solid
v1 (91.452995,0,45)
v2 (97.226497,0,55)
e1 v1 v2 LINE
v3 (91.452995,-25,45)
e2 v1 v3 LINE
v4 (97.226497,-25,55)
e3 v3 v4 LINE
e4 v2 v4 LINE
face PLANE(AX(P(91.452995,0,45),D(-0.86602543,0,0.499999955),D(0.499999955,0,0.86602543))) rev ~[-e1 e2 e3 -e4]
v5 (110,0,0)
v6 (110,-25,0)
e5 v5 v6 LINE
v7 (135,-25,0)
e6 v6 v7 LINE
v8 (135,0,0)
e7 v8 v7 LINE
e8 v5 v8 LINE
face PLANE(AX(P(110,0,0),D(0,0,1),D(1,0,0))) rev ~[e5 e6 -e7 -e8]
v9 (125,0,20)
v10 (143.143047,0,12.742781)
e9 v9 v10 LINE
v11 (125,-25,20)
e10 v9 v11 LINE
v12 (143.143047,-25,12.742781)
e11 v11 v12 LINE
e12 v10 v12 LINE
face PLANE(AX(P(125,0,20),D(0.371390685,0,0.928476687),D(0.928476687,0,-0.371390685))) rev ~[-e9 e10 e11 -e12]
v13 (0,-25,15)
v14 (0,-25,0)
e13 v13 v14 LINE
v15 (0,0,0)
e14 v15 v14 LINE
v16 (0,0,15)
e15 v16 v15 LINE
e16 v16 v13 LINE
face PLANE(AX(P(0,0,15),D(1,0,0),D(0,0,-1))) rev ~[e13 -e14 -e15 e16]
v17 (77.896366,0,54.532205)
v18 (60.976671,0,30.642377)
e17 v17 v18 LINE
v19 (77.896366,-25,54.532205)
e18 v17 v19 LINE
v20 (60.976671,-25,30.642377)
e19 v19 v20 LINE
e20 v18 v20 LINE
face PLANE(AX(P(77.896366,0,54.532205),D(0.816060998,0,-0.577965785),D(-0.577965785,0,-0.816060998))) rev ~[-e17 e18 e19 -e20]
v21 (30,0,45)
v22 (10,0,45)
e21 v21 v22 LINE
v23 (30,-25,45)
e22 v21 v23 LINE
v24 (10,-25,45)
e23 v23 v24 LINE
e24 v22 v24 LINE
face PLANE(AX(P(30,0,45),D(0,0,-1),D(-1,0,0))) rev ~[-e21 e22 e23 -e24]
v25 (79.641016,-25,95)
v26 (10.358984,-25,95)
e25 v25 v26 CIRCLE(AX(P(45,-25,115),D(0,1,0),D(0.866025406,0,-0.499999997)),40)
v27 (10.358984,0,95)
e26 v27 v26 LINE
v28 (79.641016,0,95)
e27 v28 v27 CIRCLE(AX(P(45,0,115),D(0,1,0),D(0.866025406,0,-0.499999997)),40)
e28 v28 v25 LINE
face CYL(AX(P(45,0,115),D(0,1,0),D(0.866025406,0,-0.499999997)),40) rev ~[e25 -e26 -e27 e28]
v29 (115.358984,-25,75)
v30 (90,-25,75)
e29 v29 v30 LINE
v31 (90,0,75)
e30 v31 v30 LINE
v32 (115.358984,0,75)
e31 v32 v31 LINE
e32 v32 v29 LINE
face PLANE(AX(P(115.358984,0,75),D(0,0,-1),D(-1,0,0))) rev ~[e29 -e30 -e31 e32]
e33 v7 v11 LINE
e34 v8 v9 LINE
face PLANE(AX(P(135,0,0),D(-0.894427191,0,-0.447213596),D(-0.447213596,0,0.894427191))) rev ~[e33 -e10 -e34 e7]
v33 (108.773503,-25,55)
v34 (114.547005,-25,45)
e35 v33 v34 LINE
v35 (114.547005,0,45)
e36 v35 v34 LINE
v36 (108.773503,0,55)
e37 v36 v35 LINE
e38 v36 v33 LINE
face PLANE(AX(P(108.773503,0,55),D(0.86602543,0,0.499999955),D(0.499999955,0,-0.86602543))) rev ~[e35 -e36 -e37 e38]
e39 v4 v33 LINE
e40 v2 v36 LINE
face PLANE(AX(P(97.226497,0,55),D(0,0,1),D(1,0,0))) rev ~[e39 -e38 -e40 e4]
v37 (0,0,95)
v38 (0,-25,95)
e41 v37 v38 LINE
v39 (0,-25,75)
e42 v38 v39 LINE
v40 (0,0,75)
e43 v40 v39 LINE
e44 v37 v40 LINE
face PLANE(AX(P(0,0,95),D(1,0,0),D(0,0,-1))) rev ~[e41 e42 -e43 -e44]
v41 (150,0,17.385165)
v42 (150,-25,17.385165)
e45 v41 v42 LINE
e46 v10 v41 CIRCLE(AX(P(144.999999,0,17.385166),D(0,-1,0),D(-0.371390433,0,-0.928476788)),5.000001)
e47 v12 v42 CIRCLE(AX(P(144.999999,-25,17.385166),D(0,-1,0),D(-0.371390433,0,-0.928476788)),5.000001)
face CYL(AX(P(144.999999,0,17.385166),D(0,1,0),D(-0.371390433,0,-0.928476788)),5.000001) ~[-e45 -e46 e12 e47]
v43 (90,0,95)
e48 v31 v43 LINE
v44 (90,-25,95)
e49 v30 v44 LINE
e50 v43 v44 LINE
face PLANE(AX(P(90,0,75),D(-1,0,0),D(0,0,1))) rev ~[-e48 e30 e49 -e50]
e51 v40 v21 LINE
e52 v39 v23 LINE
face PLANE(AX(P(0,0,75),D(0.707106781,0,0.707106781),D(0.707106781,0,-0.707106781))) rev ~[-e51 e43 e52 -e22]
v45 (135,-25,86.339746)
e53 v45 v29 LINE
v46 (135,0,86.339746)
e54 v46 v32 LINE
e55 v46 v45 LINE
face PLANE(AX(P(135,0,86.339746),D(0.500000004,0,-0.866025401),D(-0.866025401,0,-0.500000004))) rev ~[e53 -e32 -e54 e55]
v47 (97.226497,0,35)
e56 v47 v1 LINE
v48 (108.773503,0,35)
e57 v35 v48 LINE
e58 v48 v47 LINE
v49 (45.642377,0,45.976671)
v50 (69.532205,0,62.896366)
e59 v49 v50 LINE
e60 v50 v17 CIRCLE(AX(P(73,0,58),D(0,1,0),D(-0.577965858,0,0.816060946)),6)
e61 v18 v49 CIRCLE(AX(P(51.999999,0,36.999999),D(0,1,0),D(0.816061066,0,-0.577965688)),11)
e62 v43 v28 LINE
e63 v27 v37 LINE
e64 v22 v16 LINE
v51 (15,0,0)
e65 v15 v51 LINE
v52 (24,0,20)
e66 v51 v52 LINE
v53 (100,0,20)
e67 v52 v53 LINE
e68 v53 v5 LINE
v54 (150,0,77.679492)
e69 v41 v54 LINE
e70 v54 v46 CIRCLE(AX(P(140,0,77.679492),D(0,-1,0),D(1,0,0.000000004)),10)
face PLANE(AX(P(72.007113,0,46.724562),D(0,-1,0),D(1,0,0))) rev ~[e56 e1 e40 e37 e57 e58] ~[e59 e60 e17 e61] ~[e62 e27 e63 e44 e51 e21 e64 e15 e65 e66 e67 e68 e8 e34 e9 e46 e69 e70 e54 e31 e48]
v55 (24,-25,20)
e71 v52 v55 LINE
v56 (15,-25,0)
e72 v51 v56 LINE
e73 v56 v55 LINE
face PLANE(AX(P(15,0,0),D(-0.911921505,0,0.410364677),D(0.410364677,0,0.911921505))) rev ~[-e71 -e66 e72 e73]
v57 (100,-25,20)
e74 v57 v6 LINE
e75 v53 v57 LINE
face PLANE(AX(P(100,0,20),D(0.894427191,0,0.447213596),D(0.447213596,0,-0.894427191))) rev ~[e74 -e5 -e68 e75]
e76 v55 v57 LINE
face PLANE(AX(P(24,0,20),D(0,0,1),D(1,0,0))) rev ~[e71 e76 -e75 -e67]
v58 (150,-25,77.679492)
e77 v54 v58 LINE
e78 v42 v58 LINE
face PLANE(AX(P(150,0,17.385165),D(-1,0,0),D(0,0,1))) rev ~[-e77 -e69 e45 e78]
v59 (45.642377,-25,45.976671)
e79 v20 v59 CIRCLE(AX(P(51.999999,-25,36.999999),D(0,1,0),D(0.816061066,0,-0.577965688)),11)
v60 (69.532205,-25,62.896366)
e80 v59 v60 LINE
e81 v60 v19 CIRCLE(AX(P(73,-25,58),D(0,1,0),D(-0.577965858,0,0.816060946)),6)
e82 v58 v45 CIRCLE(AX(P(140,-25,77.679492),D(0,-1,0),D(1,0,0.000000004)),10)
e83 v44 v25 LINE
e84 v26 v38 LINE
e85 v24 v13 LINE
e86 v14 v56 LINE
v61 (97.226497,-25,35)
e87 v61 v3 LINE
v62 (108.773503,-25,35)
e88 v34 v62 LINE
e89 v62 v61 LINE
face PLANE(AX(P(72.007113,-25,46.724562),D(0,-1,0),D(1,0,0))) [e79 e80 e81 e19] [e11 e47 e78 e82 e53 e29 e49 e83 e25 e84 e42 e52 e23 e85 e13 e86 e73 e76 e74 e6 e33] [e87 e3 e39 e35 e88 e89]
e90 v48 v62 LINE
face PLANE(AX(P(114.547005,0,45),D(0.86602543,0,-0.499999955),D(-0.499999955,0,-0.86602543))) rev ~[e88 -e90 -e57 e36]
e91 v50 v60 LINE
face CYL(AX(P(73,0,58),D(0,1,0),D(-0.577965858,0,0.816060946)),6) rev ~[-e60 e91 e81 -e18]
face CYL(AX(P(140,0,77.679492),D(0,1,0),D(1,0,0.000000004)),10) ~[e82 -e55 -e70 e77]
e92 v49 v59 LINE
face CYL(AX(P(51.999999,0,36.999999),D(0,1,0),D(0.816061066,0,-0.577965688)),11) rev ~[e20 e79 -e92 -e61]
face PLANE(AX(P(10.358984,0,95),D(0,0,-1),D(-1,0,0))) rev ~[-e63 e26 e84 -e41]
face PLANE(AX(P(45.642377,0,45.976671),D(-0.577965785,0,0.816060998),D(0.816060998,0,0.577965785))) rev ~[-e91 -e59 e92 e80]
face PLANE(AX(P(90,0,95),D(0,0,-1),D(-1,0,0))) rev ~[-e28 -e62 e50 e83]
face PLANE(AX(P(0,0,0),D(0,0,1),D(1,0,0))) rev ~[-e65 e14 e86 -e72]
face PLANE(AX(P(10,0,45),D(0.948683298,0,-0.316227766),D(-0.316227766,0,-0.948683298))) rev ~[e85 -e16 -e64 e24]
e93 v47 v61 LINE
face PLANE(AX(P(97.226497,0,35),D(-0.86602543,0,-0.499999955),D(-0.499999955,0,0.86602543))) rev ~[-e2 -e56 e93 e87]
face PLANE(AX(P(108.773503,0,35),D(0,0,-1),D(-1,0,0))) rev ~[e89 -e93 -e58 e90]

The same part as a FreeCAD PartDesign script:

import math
import FreeCAD as App
import Part
import Sketcher
Q = App.Units.Quantity


def add_polygon(sketch, points):
    """Adds a closed chain of lines whose ends are joined by coincident constraints."""
    first, n = sketch.GeometryCount, len(points)
    for a, b in zip(points, points[1:] + points[:1]):
        sketch.addGeometry(Part.LineSegment(App.Vector(*a, 0), App.Vector(*b, 0)), False)
    for i in range(n):
        sketch.addConstraint(Sketcher.Constraint("Coincident", first + i, 2, first + (i + 1) % n, 1))

doc = App.newDocument("Part")
params = doc.addObject("Spreadsheet::Sheet", "Params")
for row, (alias, value) in enumerate([
    ("sketch1_radius", "5.000001 mm"),
    ("sketch1_radius2", "10 mm"),
    ("sketch1_radius3", "40 mm"),
    ("sketch1_radius4", "11 mm"),
    ("sketch1_radius5", "6 mm"),
    ("pad1_length", "25 mm"),
], start=1):
    params.set(f"A{row}", alias)
    params.set(f"B{row}", "=" + value)
    params.setAlias(f"B{row}", alias)

body = doc.addObject("PartDesign::Body", "Body")

# Sketch on XZ plane
sketch1 = body.newObject("Sketcher::SketchObject", "Sketch")
sketch1.AttachmentSupport = (doc.getObject("XZ_Plane"), [""])
sketch1.MapMode = "FlatFace"
sketch1.addGeometry(Part.LineSegment(App.Vector(0, 15, 0), App.Vector(0, 0, 0)), False)  # 0
sketch1.addGeometry(Part.LineSegment(App.Vector(0, 0, 0), App.Vector(15, 0, 0)), False)  # 1
sketch1.addGeometry(Part.LineSegment(App.Vector(15, 0, 0), App.Vector(24, 20, 0)), False)  # 2
sketch1.addGeometry(Part.LineSegment(App.Vector(24, 20, 0), App.Vector(100, 20, 0)), False)  # 3
sketch1.addGeometry(Part.LineSegment(App.Vector(100, 20, 0), App.Vector(110, 0, 0)), False)  # 4
sketch1.addGeometry(Part.LineSegment(App.Vector(110, 0, 0), App.Vector(135, 0, 0)), False)  # 5
sketch1.addGeometry(Part.LineSegment(App.Vector(135, 0, 0), App.Vector(125, 20, 0)), False)  # 6
sketch1.addGeometry(Part.LineSegment(App.Vector(125, 20, 0), App.Vector(143, 13, 0)), False)  # 7
sketch1.addGeometry(Part.ArcOfCircle(Part.Circle(App.Vector(145, 17, 0), App.Vector(0, 0, 1), 5), math.radians(-112), math.radians(0)), False)  # 8
sketch1.addGeometry(Part.LineSegment(App.Vector(150, 17, 0), App.Vector(150, 78, 0)), False)  # 9
sketch1.addGeometry(Part.ArcOfCircle(Part.Circle(App.Vector(140, 78, 0), App.Vector(0, 0, 1), 10), math.radians(0), math.radians(120)), False)  # 10
sketch1.addGeometry(Part.LineSegment(App.Vector(135, 86, 0), App.Vector(115, 75, 0)), False)  # 11
sketch1.addGeometry(Part.LineSegment(App.Vector(115, 75, 0), App.Vector(90, 75, 0)), False)  # 12
sketch1.addGeometry(Part.LineSegment(App.Vector(90, 75, 0), App.Vector(90, 95, 0)), False)  # 13
sketch1.addGeometry(Part.LineSegment(App.Vector(90, 95, 0), App.Vector(80, 95, 0)), False)  # 14
sketch1.addGeometry(Part.ArcOfCircle(Part.Circle(App.Vector(45, 115, 0), App.Vector(0, 0, 1), 40), math.radians(-150), math.radians(-30)), False)  # 15
sketch1.addGeometry(Part.LineSegment(App.Vector(10, 95, 0), App.Vector(0, 95, 0)), False)  # 16
sketch1.addGeometry(Part.LineSegment(App.Vector(0, 95, 0), App.Vector(0, 75, 0)), False)  # 17
sketch1.addGeometry(Part.LineSegment(App.Vector(0, 75, 0), App.Vector(30, 45, 0)), False)  # 18
sketch1.addGeometry(Part.LineSegment(App.Vector(30, 45, 0), App.Vector(10, 45, 0)), False)  # 19
sketch1.addGeometry(Part.LineSegment(App.Vector(10, 45, 0), App.Vector(0, 15, 0)), False)  # 20
add_polygon(sketch1, [(109, 55), (115, 45), (109, 35), (97, 35), (91, 45), (97, 55)])  # lines 21-26
sketch1.addGeometry(Part.LineSegment(App.Vector(78, 55, 0), App.Vector(61, 31, 0)), False)  # 27
sketch1.addGeometry(Part.ArcOfCircle(Part.Circle(App.Vector(52, 37, 0), App.Vector(0, 0, 1), 11), math.radians(125), math.radians(325)), False)  # 28
sketch1.addGeometry(Part.LineSegment(App.Vector(46, 46, 0), App.Vector(70, 63, 0)), False)  # 29
sketch1.addGeometry(Part.ArcOfCircle(Part.Circle(App.Vector(73, 58, 0), App.Vector(0, 0, 1), 6), math.radians(-35), math.radians(125)), False)  # 30
sketch1.addConstraint(Sketcher.Constraint("Coincident", 0, 2, 1, 1))
sketch1.addConstraint(Sketcher.Constraint("Coincident", 1, 2, 2, 1))
sketch1.addConstraint(Sketcher.Constraint("Coincident", 2, 2, 3, 1))
sketch1.addConstraint(Sketcher.Constraint("Coincident", 3, 2, 4, 1))
sketch1.addConstraint(Sketcher.Constraint("Coincident", 4, 2, 5, 1))
sketch1.addConstraint(Sketcher.Constraint("Coincident", 5, 2, 6, 1))
sketch1.addConstraint(Sketcher.Constraint("Coincident", 6, 2, 7, 1))
sketch1.addConstraint(Sketcher.Constraint("Tangent", 7, 2, 8, 1))
sketch1.addConstraint(Sketcher.Constraint("Tangent", 8, 2, 9, 1))
sketch1.addConstraint(Sketcher.Constraint("Tangent", 9, 2, 10, 1))
sketch1.addConstraint(Sketcher.Constraint("Tangent", 10, 2, 11, 1))
sketch1.addConstraint(Sketcher.Constraint("Coincident", 11, 2, 12, 1))
sketch1.addConstraint(Sketcher.Constraint("Coincident", 12, 2, 13, 1))
sketch1.addConstraint(Sketcher.Constraint("Coincident", 13, 2, 14, 1))
sketch1.addConstraint(Sketcher.Constraint("Coincident", 14, 2, 15, 2))
sketch1.addConstraint(Sketcher.Constraint("Coincident", 15, 1, 16, 1))
sketch1.addConstraint(Sketcher.Constraint("Coincident", 16, 2, 17, 1))
sketch1.addConstraint(Sketcher.Constraint("Coincident", 17, 2, 18, 1))
sketch1.addConstraint(Sketcher.Constraint("Coincident", 18, 2, 19, 1))
sketch1.addConstraint(Sketcher.Constraint("Coincident", 19, 2, 20, 1))
sketch1.addConstraint(Sketcher.Constraint("Coincident", 20, 2, 0, 1))
sketch1.addConstraint(Sketcher.Constraint("Tangent", 27, 2, 28, 2))
sketch1.addConstraint(Sketcher.Constraint("Tangent", 28, 1, 29, 1))
sketch1.addConstraint(Sketcher.Constraint("Tangent", 29, 2, 30, 2))
sketch1.addConstraint(Sketcher.Constraint("Tangent", 30, 1, 27, 1))
sketch1.addConstraint(Sketcher.Constraint("Vertical", 0))
sketch1.addConstraint(Sketcher.Constraint("Horizontal", 1))
sketch1.addConstraint(Sketcher.Constraint("Horizontal", 3))
sketch1.addConstraint(Sketcher.Constraint("Horizontal", 5))
sketch1.addConstraint(Sketcher.Constraint("Vertical", 9))
sketch1.addConstraint(Sketcher.Constraint("Horizontal", 12))
sketch1.addConstraint(Sketcher.Constraint("Vertical", 13))
sketch1.addConstraint(Sketcher.Constraint("Horizontal", 14))
sketch1.addConstraint(Sketcher.Constraint("Horizontal", 16))
sketch1.addConstraint(Sketcher.Constraint("Vertical", 17))
sketch1.addConstraint(Sketcher.Constraint("Horizontal", 19))
sketch1.addConstraint(Sketcher.Constraint("Horizontal", 23))
sketch1.addConstraint(Sketcher.Constraint("Horizontal", 26))
sketch1.addConstraint(Sketcher.Constraint("Coincident", 0, 2, -1, 1))
sketch1.addConstraint(Sketcher.Constraint("PointOnObject", 4, 2, -1))
sketch1.addConstraint(Sketcher.Constraint("PointOnObject", 16, 2, -2))
sketch1.addConstraint(Sketcher.Constraint("Parallel", 4, 6))
sketch1.addConstraint(Sketcher.Constraint("Perpendicular", 11, 21))
sketch1.addConstraint(Sketcher.Constraint("Parallel", 21, 24))
sketch1.addConstraint(Sketcher.Constraint("Parallel", 22, 25))
sketch1.addConstraint(Sketcher.Constraint("Horizontal", 3, 2, 6, 2))
sketch1.addConstraint(Sketcher.Constraint("Horizontal", 14, 2, 15, 1))
sketch1.addConstraint(Sketcher.Constraint("Horizontal", 12, 2, 17, 2))
sketch1.addConstraint(Sketcher.Constraint("Horizontal", 19, 2, 21, 2))
sketch1.addConstraint(Sketcher.Constraint("Horizontal", 21, 2, 24, 2))
sketch1.addConstraint(Sketcher.Constraint("Vertical", 5, 2, 10, 2))
sketch1.addConstraint(Sketcher.Constraint("Vertical", 23, 2, 25, 2))
sketch1.addConstraint(Sketcher.Constraint("Vertical", 22, 2, 26, 2))
sketch1.addConstraint(Sketcher.Constraint("Equal", 14, 16))
sketch1.addConstraint(Sketcher.Constraint("Equal", 1, 0))
sketch1.addConstraint(Sketcher.Constraint("Equal", 19, 13))
sketch1.addConstraint(Sketcher.Constraint("Radius", 8, Q("5.000001 mm")))
sketch1.addConstraint(Sketcher.Constraint("Radius", 10, Q("10 mm")))
sketch1.addConstraint(Sketcher.Constraint("Radius", 15, Q("40 mm")))
sketch1.addConstraint(Sketcher.Constraint("Radius", 28, Q("11 mm")))
sketch1.addConstraint(Sketcher.Constraint("Radius", 30, Q("6 mm")))
sketch1.addConstraint(Sketcher.Constraint("DistanceX", 1, 1, 1, 2, Q("15 mm")))
sketch1.addConstraint(Sketcher.Constraint("DistanceX", 3, 1, 3, 2, Q("76 mm")))
sketch1.addConstraint(Sketcher.Constraint("DistanceX", 5, 1, 5, 2, Q("25 mm")))
sketch1.addConstraint(Sketcher.Constraint("DistanceX", 19, 2, 19, 1, Q("20 mm")))
sketch1.addConstraint(Sketcher.Constraint("Angle", 11, Q("-150 deg")))
sketch1.addConstraint(Sketcher.Constraint("Angle", 18, Q("-45 deg")))
sketch1.addConstraint(Sketcher.Constraint("DistanceX", -1, 1, 8, 3, Q("144.999999 mm")))
sketch1.addConstraint(Sketcher.Constraint("DistanceX", -1, 1, 15, 3, Q("45 mm")))
sketch1.addConstraint(Sketcher.Constraint("DistanceY", -1, 1, 15, 3, Q("115 mm")))
sketch1.addConstraint(Sketcher.Constraint("DistanceX", -1, 1, 28, 3, Q("51.999999 mm")))
sketch1.addConstraint(Sketcher.Constraint("DistanceY", -1, 1, 28, 3, Q("36.999999 mm")))
sketch1.addConstraint(Sketcher.Constraint("DistanceX", -1, 1, 30, 3, Q("73 mm")))
sketch1.addConstraint(Sketcher.Constraint("DistanceY", -1, 1, 30, 3, Q("58 mm")))
sketch1.addConstraint(Sketcher.Constraint("DistanceX", -1, 1, 2, 2, Q("24 mm")))
sketch1.addConstraint(Sketcher.Constraint("DistanceY", -1, 1, 2, 2, Q("20 mm")))
sketch1.addConstraint(Sketcher.Constraint("DistanceY", -1, 1, 11, 2, Q("75 mm")))
sketch1.addConstraint(Sketcher.Constraint("DistanceX", -1, 1, 18, 2, Q("30 mm")))
sketch1.addConstraint(Sketcher.Constraint("DistanceY", -1, 1, 22, 2, Q("35 mm")))
sketch1.addConstraint(Sketcher.Constraint("Distance", 7, Q("19.54066 mm")))
sketch1.addConstraint(Sketcher.Constraint("Distance", 11, Q("22.679492 mm")))
sketch1.addConstraint(Sketcher.Constraint("DistanceX", 23, 2, 23, 1, Q("11.547006 mm")))
sketch1.addConstraint(Sketcher.Constraint("DistanceX", 21, 2, 11, 2, Q("0.811979 mm")))
sketch1.setExpression("Constraints[62]", "Params.sketch1_radius")
sketch1.setExpression("Constraints[63]", "Params.sketch1_radius2")
sketch1.setExpression("Constraints[64]", "Params.sketch1_radius3")
sketch1.setExpression("Constraints[65]", "Params.sketch1_radius4")
sketch1.setExpression("Constraints[66]", "Params.sketch1_radius5")
pad1 = body.newObject("PartDesign::Pad", "Pad")
pad1.Profile = sketch1
pad1.setExpression("Length", "Params.pad1_length")

doc.recompute()
